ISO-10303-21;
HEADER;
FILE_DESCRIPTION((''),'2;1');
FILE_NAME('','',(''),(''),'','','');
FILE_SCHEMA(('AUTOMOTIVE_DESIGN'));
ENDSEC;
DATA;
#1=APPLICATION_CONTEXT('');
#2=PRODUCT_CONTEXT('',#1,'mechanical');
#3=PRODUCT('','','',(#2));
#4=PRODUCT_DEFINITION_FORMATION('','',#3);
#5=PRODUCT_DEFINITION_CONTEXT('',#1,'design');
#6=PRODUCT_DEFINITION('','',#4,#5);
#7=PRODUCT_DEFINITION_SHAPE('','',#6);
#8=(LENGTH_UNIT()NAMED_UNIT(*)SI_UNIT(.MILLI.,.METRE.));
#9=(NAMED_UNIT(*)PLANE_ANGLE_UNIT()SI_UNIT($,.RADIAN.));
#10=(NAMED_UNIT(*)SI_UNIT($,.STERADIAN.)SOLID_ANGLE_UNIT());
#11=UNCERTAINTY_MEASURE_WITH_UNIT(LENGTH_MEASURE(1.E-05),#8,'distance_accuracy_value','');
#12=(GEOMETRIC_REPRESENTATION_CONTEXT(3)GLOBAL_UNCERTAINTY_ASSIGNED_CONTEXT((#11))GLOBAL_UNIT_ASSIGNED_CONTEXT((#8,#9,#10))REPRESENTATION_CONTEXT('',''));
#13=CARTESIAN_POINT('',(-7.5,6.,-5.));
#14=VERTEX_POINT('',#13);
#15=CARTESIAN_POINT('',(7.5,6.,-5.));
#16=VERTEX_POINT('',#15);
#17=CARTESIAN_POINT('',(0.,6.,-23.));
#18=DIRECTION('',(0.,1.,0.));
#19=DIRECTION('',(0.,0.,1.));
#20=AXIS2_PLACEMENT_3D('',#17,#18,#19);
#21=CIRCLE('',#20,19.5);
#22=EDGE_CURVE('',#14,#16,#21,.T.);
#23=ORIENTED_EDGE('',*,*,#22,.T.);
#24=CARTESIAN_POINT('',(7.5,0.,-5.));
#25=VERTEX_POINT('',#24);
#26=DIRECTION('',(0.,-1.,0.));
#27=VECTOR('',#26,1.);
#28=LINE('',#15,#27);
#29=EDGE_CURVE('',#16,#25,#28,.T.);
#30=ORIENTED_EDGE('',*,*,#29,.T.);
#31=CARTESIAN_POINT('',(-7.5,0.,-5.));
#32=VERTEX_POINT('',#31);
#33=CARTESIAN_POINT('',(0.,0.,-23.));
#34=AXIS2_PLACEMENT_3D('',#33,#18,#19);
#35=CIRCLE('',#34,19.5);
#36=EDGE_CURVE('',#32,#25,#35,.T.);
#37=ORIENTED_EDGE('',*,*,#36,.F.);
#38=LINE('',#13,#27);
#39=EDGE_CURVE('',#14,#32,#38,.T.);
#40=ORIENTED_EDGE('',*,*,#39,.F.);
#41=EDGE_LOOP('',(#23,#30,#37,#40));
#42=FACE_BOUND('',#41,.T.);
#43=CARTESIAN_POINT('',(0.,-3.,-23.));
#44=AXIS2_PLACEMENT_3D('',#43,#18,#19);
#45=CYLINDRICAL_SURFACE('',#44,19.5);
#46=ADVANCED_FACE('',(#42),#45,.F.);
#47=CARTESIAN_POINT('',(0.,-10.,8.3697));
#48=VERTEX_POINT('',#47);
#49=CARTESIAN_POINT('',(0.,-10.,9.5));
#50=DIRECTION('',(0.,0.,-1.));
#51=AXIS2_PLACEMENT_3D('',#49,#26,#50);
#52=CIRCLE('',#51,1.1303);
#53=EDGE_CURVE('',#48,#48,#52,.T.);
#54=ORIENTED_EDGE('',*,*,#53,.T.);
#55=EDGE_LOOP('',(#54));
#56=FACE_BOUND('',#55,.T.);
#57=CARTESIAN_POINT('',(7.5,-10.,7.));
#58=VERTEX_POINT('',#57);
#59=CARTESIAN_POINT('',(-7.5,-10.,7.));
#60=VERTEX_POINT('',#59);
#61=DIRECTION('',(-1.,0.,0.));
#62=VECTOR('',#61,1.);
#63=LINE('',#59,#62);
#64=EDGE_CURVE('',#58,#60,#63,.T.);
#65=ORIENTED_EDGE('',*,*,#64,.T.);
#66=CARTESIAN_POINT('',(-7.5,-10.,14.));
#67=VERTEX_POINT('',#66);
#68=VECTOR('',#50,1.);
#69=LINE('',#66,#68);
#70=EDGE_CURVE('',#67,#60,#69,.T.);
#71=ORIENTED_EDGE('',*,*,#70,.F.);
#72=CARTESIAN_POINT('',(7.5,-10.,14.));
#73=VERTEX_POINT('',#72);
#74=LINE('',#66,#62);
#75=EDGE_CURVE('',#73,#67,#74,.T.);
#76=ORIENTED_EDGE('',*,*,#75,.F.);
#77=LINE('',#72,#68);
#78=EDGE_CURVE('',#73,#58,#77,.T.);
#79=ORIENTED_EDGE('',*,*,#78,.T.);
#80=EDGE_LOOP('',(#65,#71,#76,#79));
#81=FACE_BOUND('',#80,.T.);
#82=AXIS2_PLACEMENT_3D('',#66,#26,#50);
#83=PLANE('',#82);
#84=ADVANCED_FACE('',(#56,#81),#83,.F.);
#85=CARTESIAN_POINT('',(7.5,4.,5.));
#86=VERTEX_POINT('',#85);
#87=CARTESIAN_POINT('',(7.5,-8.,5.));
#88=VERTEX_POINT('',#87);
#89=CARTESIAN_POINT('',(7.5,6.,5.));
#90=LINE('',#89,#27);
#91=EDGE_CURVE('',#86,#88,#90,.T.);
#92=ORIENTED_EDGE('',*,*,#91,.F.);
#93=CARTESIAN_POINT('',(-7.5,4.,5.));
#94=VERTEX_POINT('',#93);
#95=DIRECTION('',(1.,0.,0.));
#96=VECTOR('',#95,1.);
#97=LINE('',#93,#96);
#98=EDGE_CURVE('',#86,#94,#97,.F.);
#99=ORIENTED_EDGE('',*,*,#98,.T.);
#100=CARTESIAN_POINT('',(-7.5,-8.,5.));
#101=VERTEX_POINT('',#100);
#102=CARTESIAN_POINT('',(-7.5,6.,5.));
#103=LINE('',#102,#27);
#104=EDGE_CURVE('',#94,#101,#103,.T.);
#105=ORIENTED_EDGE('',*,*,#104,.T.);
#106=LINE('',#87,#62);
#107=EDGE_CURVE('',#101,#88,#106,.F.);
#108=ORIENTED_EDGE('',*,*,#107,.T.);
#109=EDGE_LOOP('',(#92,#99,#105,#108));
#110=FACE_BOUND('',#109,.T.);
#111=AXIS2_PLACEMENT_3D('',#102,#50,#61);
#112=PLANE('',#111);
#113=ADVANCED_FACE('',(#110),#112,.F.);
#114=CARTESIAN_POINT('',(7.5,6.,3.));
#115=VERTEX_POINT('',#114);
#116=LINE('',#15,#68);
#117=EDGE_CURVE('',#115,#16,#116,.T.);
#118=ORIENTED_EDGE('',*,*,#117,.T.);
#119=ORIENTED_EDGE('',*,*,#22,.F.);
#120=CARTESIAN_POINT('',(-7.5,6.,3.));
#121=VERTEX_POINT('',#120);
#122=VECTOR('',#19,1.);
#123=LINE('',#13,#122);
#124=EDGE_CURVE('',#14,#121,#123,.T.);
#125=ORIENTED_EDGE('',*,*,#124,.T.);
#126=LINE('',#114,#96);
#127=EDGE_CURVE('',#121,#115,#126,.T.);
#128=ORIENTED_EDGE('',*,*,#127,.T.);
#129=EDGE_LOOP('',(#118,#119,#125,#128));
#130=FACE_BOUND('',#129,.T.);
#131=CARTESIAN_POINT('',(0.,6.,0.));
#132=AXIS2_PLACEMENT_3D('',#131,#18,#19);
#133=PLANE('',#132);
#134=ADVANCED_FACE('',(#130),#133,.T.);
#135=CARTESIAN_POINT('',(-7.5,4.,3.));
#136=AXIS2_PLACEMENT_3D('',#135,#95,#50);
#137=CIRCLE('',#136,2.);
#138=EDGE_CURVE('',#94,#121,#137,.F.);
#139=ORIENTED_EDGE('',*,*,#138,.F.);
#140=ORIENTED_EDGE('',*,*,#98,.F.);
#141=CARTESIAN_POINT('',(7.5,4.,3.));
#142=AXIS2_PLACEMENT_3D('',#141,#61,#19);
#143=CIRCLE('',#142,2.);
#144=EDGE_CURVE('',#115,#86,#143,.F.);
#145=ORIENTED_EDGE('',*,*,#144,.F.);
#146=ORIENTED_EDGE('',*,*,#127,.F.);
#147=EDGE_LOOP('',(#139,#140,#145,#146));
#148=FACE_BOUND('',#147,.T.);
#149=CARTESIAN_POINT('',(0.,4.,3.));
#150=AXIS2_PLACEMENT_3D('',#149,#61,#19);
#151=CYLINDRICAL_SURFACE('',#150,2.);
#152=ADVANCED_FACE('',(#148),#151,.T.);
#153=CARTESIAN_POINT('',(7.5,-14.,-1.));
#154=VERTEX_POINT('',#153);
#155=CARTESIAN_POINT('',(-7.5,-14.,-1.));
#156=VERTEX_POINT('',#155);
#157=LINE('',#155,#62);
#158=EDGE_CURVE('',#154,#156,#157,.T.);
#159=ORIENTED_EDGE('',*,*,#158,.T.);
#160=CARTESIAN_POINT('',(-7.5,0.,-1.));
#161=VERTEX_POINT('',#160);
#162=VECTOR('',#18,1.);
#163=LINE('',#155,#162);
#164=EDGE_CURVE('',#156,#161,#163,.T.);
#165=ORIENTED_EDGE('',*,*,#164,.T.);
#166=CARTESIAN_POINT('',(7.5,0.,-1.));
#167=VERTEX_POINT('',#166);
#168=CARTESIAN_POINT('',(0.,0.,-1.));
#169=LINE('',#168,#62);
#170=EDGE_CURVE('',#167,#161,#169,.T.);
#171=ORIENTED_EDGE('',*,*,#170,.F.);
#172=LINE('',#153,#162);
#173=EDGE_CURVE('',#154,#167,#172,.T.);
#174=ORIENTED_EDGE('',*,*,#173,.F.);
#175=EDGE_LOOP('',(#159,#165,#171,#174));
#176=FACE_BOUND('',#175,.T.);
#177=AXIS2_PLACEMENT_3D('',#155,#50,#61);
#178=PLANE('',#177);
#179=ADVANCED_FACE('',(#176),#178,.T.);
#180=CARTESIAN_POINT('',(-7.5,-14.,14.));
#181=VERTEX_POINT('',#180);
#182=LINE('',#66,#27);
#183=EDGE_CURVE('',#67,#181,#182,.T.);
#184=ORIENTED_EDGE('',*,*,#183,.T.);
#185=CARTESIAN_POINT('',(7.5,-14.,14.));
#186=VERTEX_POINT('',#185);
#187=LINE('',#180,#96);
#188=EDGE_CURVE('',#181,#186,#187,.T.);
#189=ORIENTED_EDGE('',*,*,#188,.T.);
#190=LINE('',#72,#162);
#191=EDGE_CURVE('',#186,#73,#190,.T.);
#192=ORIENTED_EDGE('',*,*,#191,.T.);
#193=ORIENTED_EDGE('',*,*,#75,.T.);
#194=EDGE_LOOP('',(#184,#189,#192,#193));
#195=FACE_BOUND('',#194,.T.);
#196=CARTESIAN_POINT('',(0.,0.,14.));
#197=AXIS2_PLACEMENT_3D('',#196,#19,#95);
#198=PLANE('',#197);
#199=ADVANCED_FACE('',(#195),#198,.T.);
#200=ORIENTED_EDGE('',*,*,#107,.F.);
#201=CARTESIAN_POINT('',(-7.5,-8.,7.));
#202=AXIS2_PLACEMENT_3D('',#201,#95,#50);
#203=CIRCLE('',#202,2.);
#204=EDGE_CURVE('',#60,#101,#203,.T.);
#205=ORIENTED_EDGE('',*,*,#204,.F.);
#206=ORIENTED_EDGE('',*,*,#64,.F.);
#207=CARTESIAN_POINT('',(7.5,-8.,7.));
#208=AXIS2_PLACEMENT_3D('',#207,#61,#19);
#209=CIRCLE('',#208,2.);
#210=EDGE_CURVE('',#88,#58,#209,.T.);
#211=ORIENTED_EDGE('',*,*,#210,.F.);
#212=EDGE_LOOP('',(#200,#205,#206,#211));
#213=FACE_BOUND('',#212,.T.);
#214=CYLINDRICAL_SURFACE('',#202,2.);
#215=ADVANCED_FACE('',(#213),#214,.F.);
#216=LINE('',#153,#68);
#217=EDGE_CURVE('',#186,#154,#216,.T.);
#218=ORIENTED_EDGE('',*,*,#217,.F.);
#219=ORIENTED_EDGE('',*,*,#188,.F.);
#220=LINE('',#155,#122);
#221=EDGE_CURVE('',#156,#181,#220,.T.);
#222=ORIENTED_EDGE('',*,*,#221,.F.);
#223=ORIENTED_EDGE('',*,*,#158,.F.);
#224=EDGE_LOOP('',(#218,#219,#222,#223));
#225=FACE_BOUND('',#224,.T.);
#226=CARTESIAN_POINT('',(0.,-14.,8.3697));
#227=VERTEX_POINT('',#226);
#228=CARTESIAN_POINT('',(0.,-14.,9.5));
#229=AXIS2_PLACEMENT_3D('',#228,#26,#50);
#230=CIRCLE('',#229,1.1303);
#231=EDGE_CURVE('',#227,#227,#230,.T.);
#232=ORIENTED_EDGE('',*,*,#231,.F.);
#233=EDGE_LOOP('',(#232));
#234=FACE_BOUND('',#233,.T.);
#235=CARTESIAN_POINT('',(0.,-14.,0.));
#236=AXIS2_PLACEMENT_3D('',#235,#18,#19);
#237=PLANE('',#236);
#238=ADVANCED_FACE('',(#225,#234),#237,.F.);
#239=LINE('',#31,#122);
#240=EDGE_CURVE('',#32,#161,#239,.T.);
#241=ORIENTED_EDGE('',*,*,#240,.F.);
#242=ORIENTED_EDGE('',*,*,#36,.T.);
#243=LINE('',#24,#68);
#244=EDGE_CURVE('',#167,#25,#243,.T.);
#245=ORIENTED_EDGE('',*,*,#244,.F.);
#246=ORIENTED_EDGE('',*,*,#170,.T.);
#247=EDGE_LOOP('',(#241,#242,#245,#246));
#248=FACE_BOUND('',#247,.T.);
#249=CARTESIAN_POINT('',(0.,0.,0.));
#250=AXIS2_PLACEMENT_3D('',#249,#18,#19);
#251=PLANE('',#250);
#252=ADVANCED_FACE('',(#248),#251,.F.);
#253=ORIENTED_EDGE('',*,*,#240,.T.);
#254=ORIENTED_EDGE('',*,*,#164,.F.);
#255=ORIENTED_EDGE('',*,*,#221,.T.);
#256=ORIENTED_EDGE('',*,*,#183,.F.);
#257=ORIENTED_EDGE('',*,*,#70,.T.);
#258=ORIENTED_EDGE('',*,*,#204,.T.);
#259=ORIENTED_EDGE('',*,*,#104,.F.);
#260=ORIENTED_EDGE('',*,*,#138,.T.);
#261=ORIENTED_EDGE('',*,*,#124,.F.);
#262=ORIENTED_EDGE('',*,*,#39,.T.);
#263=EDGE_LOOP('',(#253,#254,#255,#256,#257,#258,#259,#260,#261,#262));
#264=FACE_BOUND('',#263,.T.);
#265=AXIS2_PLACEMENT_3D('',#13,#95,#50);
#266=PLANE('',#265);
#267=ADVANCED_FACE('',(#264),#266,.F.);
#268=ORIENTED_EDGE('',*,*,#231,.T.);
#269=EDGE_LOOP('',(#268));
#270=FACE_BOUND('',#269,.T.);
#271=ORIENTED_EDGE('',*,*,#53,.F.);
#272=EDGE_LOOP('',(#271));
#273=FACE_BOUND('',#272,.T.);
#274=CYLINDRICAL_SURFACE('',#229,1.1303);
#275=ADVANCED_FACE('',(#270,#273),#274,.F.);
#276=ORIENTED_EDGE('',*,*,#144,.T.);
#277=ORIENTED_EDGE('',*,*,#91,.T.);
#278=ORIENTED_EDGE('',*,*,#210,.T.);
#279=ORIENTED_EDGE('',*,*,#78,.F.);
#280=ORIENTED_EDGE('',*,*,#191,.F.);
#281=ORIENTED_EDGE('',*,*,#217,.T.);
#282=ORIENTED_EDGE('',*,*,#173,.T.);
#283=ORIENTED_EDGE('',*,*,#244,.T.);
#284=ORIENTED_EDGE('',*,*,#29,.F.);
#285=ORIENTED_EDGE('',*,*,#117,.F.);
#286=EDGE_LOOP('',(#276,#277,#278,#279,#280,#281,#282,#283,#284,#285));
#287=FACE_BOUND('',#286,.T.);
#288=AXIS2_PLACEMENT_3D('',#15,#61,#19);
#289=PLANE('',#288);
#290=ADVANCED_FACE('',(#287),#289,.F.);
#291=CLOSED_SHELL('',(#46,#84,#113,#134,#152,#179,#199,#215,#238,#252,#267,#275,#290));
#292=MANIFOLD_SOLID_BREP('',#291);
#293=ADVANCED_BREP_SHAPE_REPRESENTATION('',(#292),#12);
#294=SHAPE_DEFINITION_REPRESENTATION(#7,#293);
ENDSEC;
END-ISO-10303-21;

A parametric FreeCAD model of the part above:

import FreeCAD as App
import Part
import Sketcher
from FreeCAD import Vector


def edges_at(feature, points):
    """Names of the edges that pass closest to the given points."""
    edges = feature.Shape.Edges
    near = lambda p: min(range(len(edges)), key=lambda i: edges[i].distToShape(Part.Vertex(*p))[0])
    return sorted({f"Edge{near(p) + 1}" for p in points})


def add_polygon(sketch, points):
    """Adds a closed chain of lines whose ends are joined by coincident constraints."""
    first, n = sketch.GeometryCount, len(points)
    for a, b in zip(points, points[1:] + points[:1]):
        sketch.addGeometry(Part.LineSegment(App.Vector(*a, 0), App.Vector(*b, 0)), False)
    for i in range(n):
        sketch.addConstraint(Sketcher.Constraint("Coincident", first + i, 2, first + (i + 1) % n, 1))

doc = App.newDocument("Part")
body = doc.addObject("PartDesign::Body", "Body")

# Sketch on XZ plane
sketch1 = doc.addObject("Sketcher::SketchObject", "Sketch")
body.addObject(sketch1)
sketch1.AttachmentSupport = (doc.XZ_Plane, [""])
sketch1.MapMode = "FlatFace"
add_polygon(sketch1, [(-8, -5), (-8, 5), (8, 5), (8, -5)])  # lines 0-3
sketch1.addConstraint([
    Sketcher.Constraint("Vertical", 0),
    Sketcher.Constraint("Horizontal", 1),
    Sketcher.Constraint("Vertical", 2),
    Sketcher.Constraint("Horizontal", 3),
    Sketcher.Constraint("Symmetric", 0, 2, 2, 2, -1, 1),
    Sketcher.Constraint("DistanceX", 1, 1, 1, 2, 15.0),
    Sketcher.Constraint("DistanceY", 0, 1, 0, 2, 10.0),
])
pad1 = doc.addObject("PartDesign::Pad", "Pad")
body.addObject(pad1)
pad1.Profile = sketch1
pad1.Length = 6
pad1.Reversed = True

# Sketch on XZ plane
sketch2 = doc.addObject("Sketcher::SketchObject", "Sketch001")
body.addObject(sketch2)
sketch2.AttachmentSupport = (doc.XZ_Plane, [""])
sketch2.MapMode = "FlatFace"
sketch2.AttachmentOffset = App.Placement(Vector(0, 0, -6), App.Rotation())
sketch2.addGeometry(Part.Circle(Vector(0, -23, 0), Vector(0, 0, 1), 20), False)
sketch2.addConstraint([
    Sketcher.Constraint("PointOnObject", 0, 3, -2),
    Sketcher.Constraint("Diameter", 0, 39.0),
    Sketcher.Constraint("DistanceY", 0, 3, -1, 1, 23.0),
])
pocket1 = doc.addObject("PartDesign::Pocket", "Pocket")
body.addObject(pocket1)
pocket1.Profile = sketch2
pocket1.Length = 9
pocket1.Reversed = True

# Sketch on XZ plane
sketch3 = doc.addObject("Sketcher::SketchObject", "Sketch002")
body.addObject(sketch3)
sketch3.AttachmentSupport = (doc.XZ_Plane, [""])
sketch3.MapMode = "FlatFace"
sketch3.AttachmentOffset = App.Placement(Vector(0, 0, -6), App.Rotation())
add_polygon(sketch3, [(-8, -1), (-8, 5), (8, 5), (8, -1)])  # lines 0-3
sketch3.addConstraint([
    Sketcher.Constraint("Vertical", 0),
    Sketcher.Constraint("Horizontal", 1),
    Sketcher.Constraint("Vertical", 2),
    Sketcher.Constraint("Horizontal", 3),
    Sketcher.Constraint("DistanceX", 1, 1, 1, 2, 15.0),
    Sketcher.Constraint("DistanceY", 0, 1, 0, 2, 6.0),
    Sketcher.Constraint("DistanceY", -1, 1, 0, 2, 5.0),
    Sketcher.Constraint("DistanceX", 0, 2, -1, 1, 7.5),
])
pad2 = doc.addObject("PartDesign::Pad", "Pad001")
body.addObject(pad2)
pad2.Profile = sketch3
pad2.Length = 20

# Sketch on XY plane
sketch4 = doc.addObject("Sketcher::SketchObject", "Sketch003")
body.addObject(sketch4)
sketch4.AttachmentSupport = (doc.XY_Plane, [""])
sketch4.MapMode = "FlatFace"
sketch4.AttachmentOffset = App.Placement(Vector(0, 0, 5), App.Rotation())
add_polygon(sketch4, [(-7.5, -10), (-7.5, -14), (7.5, -14), (7.5, -10)])  # lines 0-3
sketch4.addConstraint([
    Sketcher.Constraint("Vertical", 0),
    Sketcher.Constraint("Horizontal", 1),
    Sketcher.Constraint("Vertical", 2),
    Sketcher.Constraint("Horizontal", 3),
    Sketcher.Constraint("DistanceX", 1, 1, 1, 2, 15.0),
    Sketcher.Constraint("DistanceY", 0, 2, 0, 1, 4.0),
    Sketcher.Constraint("DistanceY", 0, 2, -1, 1, 14.0),
    Sketcher.Constraint("DistanceX", 0, 2, -1, 1, 7.5),
])
pad3 = doc.addObject("PartDesign::Pad", "Pad002")
body.addObject(pad3)
pad3.Profile = sketch4
pad3.Length = 9

# Sketch on XZ plane
sketch5 = doc.addObject("Sketcher::SketchObject", "Sketch004")
body.addObject(sketch5)
sketch5.AttachmentSupport = (doc.XZ_Plane, [""])
sketch5.MapMode = "FlatFace"
sketch5.AttachmentOffset = App.Placement(Vector(0, 0, 14), App.Rotation())
sketch5.addGeometry(Part.Circle(Vector(0, 9.5, 0), Vector(0, 0, 1), 1.1), False)
sketch5.addConstraint([
    Sketcher.Constraint("PointOnObject", 0, 3, -2),
    Sketcher.Constraint("Diameter", 0, 2.2606),
    Sketcher.Constraint("DistanceY", -1, 1, 0, 3, 9.5),
])
doc.recompute()
hole = doc.addObject("PartDesign::Hole", "Hole")
body.addObject(hole)
hole.Profile = sketch5
hole.ThreadType = "None"
hole.Diameter = 2.2606
hole.DepthType = "Dimension"
hole.Depth = 7.6
hole.DrillPoint = "Angled"
hole.DrillPointAngle = 118
doc.recompute()

fillet = doc.addObject("PartDesign::Fillet", "Fillet")
body.addObject(fillet)
fillet.Base = (hole, edges_at(hole, [(0, -10, 5), (0, 6, 5)]))
fillet.Radius = 2

doc.recompute()
